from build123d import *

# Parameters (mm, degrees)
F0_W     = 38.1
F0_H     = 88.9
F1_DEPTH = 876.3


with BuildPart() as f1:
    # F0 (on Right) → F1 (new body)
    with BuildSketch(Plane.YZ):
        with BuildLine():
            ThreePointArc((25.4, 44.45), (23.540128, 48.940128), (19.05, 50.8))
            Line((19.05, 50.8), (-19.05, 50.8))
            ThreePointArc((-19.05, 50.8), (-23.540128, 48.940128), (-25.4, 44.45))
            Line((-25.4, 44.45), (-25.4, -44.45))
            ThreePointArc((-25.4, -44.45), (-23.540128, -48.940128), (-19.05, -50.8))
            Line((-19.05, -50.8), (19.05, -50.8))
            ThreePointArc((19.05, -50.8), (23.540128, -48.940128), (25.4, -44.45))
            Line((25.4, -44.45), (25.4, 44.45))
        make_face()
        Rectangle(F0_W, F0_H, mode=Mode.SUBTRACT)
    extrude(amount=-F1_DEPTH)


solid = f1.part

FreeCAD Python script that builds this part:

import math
import FreeCAD as App
import Part
import Sketcher
Q = App.Units.Quantity

doc = App.newDocument("Part")
body = doc.addObject("PartDesign::Body", "Body")

# Sketch on YZ plane
sketch1 = doc.addObject("Sketcher::SketchObject", "Sketch")
body.addObject(sketch1)
sketch1.AttachmentSupport = (doc.YZ_Plane, [""])
sketch1.MapMode = "FlatFace"
sketch1.addGeometry([
    Part.ArcOfCircle(Part.Circle(App.Vector(19, 44, 0), App.Vector(0, 0, 1), 6), math.radians(0), math.radians(90)),  # 0
    Part.LineSegment(App.Vector(19, 51, 0), App.Vector(-19, 51, 0)),  # 1
    Part.ArcOfCircle(Part.Circle(App.Vector(-19, 44, 0), App.Vector(0, 0, 1), 6), math.radians(90), math.radians(180)),  # 2
    Part.LineSegment(App.Vector(-25, 44, 0), App.Vector(-25, -44, 0)),  # 3
    Part.ArcOfCircle(Part.Circle(App.Vector(-19, -44, 0), App.Vector(0, 0, 1), 6), math.radians(-180), math.radians(-90)),  # 4
    Part.LineSegment(App.Vector(-19, -51, 0), App.Vector(19, -51, 0)),  # 5
    Part.ArcOfCircle(Part.Circle(App.Vector(19, -44, 0), App.Vector(0, 0, 1), 6), math.radians(-90), math.radians(0)),  # 6
    Part.LineSegment(App.Vector(25, -44, 0), App.Vector(25, 44, 0)),  # 7
    Part.LineSegment(App.Vector(19, -44, 0), App.Vector(-19, -44, 0)),  # 8
    Part.LineSegment(App.Vector(-19, -44, 0), App.Vector(-19, 44, 0)),  # 9
    Part.LineSegment(App.Vector(-19, 44, 0), App.Vector(19, 44, 0)),  # 10
    Part.LineSegment(App.Vector(19, 44, 0), App.Vector(19, -44, 0)),  # 11
], False)
sketch1.addConstraint([
    Sketcher.Constraint("Tangent", 0, 2, 1, 1),
    Sketcher.Constraint("Tangent", 1, 2, 2, 1),
    Sketcher.Constraint("Tangent", 2, 2, 3, 1),
    Sketcher.Constraint("Tangent", 3, 2, 4, 1),
    Sketcher.Constraint("Tangent", 4, 2, 5, 1),
    Sketcher.Constraint("Tangent", 5, 2, 6, 1),
    Sketcher.Constraint("Tangent", 6, 2, 7, 1),
    Sketcher.Constraint("Tangent", 7, 2, 0, 1),
    Sketcher.Constraint("Coincident", 8, 2, 9, 1),
    Sketcher.Constraint("Coincident", 9, 2, 10, 1),
    Sketcher.Constraint("Coincident", 10, 2, 11, 1),
    Sketcher.Constraint("Coincident", 11, 2, 8, 1),
    Sketcher.Constraint("Horizontal", 1),
    Sketcher.Constraint("Vertical", 3),
    Sketcher.Constraint("Horizontal", 5),
    Sketcher.Constraint("Vertical", 7),
    Sketcher.Constraint("Horizontal", 8),
    Sketcher.Constraint("Vertical", 9),
    Sketcher.Constraint("Horizontal", 10),
    Sketcher.Constraint("Vertical", 11),
    Sketcher.Constraint("Coincident", 8, 2, 4, 3),
    Sketcher.Constraint("Coincident", 9, 2, 2, 3),
    Sketcher.Constraint("Coincident", 10, 2, 0, 3),
    Sketcher.Constraint("Equal", 4, 6),
    Sketcher.Constraint("Symmetric", 0, 3, 4, 3, -1, 1),
    Sketcher.Constraint("Radius", 0, Q("0.25 in")),
    Sketcher.Constraint("DistanceX", 1, 2, 1, 1, Q("1.5 in")),
    Sketcher.Constraint("DistanceY", 3, 2, 3, 1, Q("3.5 in")),
])
pad1 = doc.addObject("PartDesign::Pad", "Pad")
body.addObject(pad1)
pad1.Profile = sketch1
pad1.Length = Q("34.5 in")
pad1.Reversed = True

doc.recompute()
